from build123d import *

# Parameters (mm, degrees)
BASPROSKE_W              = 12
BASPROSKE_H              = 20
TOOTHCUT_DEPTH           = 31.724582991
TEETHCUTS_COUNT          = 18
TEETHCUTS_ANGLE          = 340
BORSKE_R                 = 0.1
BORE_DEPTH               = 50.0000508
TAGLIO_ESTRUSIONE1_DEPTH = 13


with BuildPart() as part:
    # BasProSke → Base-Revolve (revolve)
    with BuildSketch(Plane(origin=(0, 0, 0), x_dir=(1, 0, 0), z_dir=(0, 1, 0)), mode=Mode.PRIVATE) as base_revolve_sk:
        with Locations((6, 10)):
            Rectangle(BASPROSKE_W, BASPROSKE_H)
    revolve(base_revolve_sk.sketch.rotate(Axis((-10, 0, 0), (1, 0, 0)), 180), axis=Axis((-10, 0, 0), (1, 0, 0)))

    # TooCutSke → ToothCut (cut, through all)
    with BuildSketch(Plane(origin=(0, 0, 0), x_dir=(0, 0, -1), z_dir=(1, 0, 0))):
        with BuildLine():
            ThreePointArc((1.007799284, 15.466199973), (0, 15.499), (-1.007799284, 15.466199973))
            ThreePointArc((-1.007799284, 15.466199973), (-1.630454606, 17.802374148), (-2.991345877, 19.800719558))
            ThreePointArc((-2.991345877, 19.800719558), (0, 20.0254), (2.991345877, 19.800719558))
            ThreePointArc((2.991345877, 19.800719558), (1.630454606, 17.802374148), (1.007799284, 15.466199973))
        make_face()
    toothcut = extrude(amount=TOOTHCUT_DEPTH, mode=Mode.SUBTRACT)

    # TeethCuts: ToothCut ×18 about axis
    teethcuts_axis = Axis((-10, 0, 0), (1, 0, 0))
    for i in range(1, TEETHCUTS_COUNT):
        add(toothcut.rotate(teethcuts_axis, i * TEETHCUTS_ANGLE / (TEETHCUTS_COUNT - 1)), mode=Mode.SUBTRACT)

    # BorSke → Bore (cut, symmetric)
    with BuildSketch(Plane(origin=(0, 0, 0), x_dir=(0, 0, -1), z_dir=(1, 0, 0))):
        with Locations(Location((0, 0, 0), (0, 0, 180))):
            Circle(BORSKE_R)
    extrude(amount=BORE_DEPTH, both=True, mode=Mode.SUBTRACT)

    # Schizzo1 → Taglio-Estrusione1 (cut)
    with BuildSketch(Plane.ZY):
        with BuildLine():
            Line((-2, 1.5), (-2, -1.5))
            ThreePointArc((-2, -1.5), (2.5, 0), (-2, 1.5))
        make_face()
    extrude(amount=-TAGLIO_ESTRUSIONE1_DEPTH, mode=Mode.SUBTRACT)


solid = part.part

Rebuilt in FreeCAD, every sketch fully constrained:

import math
import FreeCAD as App
import Part
import Sketcher
from FreeCAD import Vector
Q = App.Units.Quantity

doc = App.newDocument("Part")
body = doc.addObject("PartDesign::Body", "Body")

sketch1 = doc.addObject("Sketcher::SketchObject", "Sketch")
body.addObject(sketch1)
sketch1.AttachmentSupport = (doc.XZ_Plane, [""])
sketch1.MapMode = "FlatFace"
sketch1.addGeometry([
    Part.LineSegment(Vector(0, -20, 0), Vector(0, 0, 0)),
    Part.LineSegment(Vector(0, 0, 0), Vector(12, 0, 0)),
    Part.LineSegment(Vector(12, 0, 0), Vector(12, -20, 0)),
    Part.LineSegment(Vector(12, -20, 0), Vector(0, -20, 0)),
], False)
sketch1.addConstraint([
    Sketcher.Constraint("Coincident", 0, 2, 1, 1),
    Sketcher.Constraint("Coincident", 1, 2, 2, 1),
    Sketcher.Constraint("Coincident", 2, 2, 3, 1),
    Sketcher.Constraint("Coincident", 3, 2, 0, 1),
    Sketcher.Constraint("Vertical", 0),
    Sketcher.Constraint("Horizontal", 1),
    Sketcher.Constraint("Vertical", 2),
    Sketcher.Constraint("Horizontal", 3),
    Sketcher.Constraint("Coincident", 0, 2, -1, 1),
    Sketcher.Constraint("DistanceX", 1, 1, 1, 2, Q("12 mm")),
    Sketcher.Constraint("DistanceY", 0, 1, 0, 2, Q("20 mm")),
])
revolution = doc.addObject("PartDesign::Revolution", "Revolution")
body.addObject(revolution)
revolution.Profile = sketch1
revolution.ReferenceAxis = (sketch1, ["H_Axis"])
revolution.Angle = 360

sketch2 = doc.addObject("Sketcher::SketchObject", "Sketch001")
body.addObject(sketch2)
sketch2.AttachmentSupport = (doc.YZ_Plane, [""])
sketch2.MapMode = "FlatFace"
sketch2.addGeometry([
    Part.ArcOfCircle(Part.Circle(Vector(0, 0, 0), Vector(0, 0, 1), 15.5), math.radians(-3.73), math.radians(3.73)),
    Part.ArcOfCircle(Part.Circle(Vector(14.8, -8.2, 0), Vector(0, 0, 1), 7.2), math.radians(46), math.radians(85)),
    Part.ArcOfCircle(Part.Circle(Vector(0, 0, 0), Vector(0, 0, 1), 20), math.radians(-8.59), math.radians(8.59)),
    Part.ArcOfCircle(Part.Circle(Vector(14.8, 8.2, 0), Vector(0, 0, 1), 7.2), math.radians(-85), math.radians(-46)),
], False)
sketch2.addConstraint([
    Sketcher.Constraint("Coincident", 0, 1, 1, 2),
    Sketcher.Constraint("Coincident", 1, 1, 2, 1),
    Sketcher.Constraint("Coincident", 2, 2, 3, 2),
    Sketcher.Constraint("Coincident", 3, 1, 0, 2),
    Sketcher.Constraint("Coincident", 0, 3, -1, 1),
    Sketcher.Constraint("Coincident", 2, 3, -1, 1),
    Sketcher.Constraint("Equal", 1, 3),
    Sketcher.Constraint("Symmetric", 1, 3, 3, 3, -1),
    Sketcher.Constraint("Radius", 1, Q("7.2 mm")),
    Sketcher.Constraint("Radius", 0, Q("15.499 mm")),
    Sketcher.Constraint("Radius", 2, Q("20.0254 mm")),
    Sketcher.Constraint("DistanceY", 1, 3, -1, 1, Q("8.177498 mm")),
    Sketcher.Constraint("DistanceX", -1, 1, 0, 1, Q("15.4662 mm")),
])
pocket1 = doc.addObject("PartDesign::Pocket", "Pocket")
body.addObject(pocket1)
pocket1.Profile = sketch2
pocket1.Type = "ThroughAll"
pocket1.Reversed = True
doc.recompute()

polarpattern = doc.addObject("PartDesign::PolarPattern", "PolarPattern")
body.addObject(polarpattern)
polarpattern.Originals = [pocket1]
polarpattern.Axis = (doc.X_Axis, [""])
polarpattern.Angle = 360
polarpattern.Occurrences = 18
body.Tip = polarpattern

sketch3 = doc.addObject("Sketcher::SketchObject", "Sketch002")
body.addObject(sketch3)
sketch3.AttachmentSupport = (doc.YZ_Plane, [""])
sketch3.MapMode = "FlatFace"
sketch3.addGeometry(Part.Circle(Vector(0, 0, 0), Vector(0, 0, 1), 0.1), False)
sketch3.addConstraint([
    Sketcher.Constraint("Coincident", 0, 3, -1, 1),
    Sketcher.Constraint("Diameter", 0, Q("0.2 mm")),
])
pocket2 = doc.addObject("PartDesign::Pocket", "Pocket001")
body.addObject(pocket2)
pocket2.Profile = sketch3
pocket2.Length = 100.000102
pocket2.Midplane = True

sketch4 = doc.addObject("Sketcher::SketchObject", "Sketch003")
body.addObject(sketch4)
sketch4.AttachmentSupport = (doc.YZ_Plane, [""])
sketch4.MapMode = "FlatFace"
sketch4.addGeometry([
    Part.LineSegment(Vector(1.5, -2, 0), Vector(-1.5, -2, 0)),
    Part.ArcOfCircle(Part.Circle(Vector(0, 0, 0), Vector(0, 0, 1), 2.5), math.radians(-53), math.radians(233)),
], False)
sketch4.addConstraint([
    Sketcher.Constraint("Coincident", 0, 1, 1, 1),
    Sketcher.Constraint("Coincident", 1, 2, 0, 2),
    Sketcher.Constraint("Horizontal", 0),
    Sketcher.Constraint("Coincident", 1, 3, -1, 1),
    Sketcher.Constraint("Radius", 1, Q("2.5 mm")),
    Sketcher.Constraint("DistanceX", 0, 2, 0, 1, Q("3 mm")),
])
pocket3 = doc.addObject("PartDesign::Pocket", "Pocket002")
body.addObject(pocket3)
pocket3.Profile = sketch4
pocket3.Length = 13
pocket3.Reversed = True

doc.recompute()
